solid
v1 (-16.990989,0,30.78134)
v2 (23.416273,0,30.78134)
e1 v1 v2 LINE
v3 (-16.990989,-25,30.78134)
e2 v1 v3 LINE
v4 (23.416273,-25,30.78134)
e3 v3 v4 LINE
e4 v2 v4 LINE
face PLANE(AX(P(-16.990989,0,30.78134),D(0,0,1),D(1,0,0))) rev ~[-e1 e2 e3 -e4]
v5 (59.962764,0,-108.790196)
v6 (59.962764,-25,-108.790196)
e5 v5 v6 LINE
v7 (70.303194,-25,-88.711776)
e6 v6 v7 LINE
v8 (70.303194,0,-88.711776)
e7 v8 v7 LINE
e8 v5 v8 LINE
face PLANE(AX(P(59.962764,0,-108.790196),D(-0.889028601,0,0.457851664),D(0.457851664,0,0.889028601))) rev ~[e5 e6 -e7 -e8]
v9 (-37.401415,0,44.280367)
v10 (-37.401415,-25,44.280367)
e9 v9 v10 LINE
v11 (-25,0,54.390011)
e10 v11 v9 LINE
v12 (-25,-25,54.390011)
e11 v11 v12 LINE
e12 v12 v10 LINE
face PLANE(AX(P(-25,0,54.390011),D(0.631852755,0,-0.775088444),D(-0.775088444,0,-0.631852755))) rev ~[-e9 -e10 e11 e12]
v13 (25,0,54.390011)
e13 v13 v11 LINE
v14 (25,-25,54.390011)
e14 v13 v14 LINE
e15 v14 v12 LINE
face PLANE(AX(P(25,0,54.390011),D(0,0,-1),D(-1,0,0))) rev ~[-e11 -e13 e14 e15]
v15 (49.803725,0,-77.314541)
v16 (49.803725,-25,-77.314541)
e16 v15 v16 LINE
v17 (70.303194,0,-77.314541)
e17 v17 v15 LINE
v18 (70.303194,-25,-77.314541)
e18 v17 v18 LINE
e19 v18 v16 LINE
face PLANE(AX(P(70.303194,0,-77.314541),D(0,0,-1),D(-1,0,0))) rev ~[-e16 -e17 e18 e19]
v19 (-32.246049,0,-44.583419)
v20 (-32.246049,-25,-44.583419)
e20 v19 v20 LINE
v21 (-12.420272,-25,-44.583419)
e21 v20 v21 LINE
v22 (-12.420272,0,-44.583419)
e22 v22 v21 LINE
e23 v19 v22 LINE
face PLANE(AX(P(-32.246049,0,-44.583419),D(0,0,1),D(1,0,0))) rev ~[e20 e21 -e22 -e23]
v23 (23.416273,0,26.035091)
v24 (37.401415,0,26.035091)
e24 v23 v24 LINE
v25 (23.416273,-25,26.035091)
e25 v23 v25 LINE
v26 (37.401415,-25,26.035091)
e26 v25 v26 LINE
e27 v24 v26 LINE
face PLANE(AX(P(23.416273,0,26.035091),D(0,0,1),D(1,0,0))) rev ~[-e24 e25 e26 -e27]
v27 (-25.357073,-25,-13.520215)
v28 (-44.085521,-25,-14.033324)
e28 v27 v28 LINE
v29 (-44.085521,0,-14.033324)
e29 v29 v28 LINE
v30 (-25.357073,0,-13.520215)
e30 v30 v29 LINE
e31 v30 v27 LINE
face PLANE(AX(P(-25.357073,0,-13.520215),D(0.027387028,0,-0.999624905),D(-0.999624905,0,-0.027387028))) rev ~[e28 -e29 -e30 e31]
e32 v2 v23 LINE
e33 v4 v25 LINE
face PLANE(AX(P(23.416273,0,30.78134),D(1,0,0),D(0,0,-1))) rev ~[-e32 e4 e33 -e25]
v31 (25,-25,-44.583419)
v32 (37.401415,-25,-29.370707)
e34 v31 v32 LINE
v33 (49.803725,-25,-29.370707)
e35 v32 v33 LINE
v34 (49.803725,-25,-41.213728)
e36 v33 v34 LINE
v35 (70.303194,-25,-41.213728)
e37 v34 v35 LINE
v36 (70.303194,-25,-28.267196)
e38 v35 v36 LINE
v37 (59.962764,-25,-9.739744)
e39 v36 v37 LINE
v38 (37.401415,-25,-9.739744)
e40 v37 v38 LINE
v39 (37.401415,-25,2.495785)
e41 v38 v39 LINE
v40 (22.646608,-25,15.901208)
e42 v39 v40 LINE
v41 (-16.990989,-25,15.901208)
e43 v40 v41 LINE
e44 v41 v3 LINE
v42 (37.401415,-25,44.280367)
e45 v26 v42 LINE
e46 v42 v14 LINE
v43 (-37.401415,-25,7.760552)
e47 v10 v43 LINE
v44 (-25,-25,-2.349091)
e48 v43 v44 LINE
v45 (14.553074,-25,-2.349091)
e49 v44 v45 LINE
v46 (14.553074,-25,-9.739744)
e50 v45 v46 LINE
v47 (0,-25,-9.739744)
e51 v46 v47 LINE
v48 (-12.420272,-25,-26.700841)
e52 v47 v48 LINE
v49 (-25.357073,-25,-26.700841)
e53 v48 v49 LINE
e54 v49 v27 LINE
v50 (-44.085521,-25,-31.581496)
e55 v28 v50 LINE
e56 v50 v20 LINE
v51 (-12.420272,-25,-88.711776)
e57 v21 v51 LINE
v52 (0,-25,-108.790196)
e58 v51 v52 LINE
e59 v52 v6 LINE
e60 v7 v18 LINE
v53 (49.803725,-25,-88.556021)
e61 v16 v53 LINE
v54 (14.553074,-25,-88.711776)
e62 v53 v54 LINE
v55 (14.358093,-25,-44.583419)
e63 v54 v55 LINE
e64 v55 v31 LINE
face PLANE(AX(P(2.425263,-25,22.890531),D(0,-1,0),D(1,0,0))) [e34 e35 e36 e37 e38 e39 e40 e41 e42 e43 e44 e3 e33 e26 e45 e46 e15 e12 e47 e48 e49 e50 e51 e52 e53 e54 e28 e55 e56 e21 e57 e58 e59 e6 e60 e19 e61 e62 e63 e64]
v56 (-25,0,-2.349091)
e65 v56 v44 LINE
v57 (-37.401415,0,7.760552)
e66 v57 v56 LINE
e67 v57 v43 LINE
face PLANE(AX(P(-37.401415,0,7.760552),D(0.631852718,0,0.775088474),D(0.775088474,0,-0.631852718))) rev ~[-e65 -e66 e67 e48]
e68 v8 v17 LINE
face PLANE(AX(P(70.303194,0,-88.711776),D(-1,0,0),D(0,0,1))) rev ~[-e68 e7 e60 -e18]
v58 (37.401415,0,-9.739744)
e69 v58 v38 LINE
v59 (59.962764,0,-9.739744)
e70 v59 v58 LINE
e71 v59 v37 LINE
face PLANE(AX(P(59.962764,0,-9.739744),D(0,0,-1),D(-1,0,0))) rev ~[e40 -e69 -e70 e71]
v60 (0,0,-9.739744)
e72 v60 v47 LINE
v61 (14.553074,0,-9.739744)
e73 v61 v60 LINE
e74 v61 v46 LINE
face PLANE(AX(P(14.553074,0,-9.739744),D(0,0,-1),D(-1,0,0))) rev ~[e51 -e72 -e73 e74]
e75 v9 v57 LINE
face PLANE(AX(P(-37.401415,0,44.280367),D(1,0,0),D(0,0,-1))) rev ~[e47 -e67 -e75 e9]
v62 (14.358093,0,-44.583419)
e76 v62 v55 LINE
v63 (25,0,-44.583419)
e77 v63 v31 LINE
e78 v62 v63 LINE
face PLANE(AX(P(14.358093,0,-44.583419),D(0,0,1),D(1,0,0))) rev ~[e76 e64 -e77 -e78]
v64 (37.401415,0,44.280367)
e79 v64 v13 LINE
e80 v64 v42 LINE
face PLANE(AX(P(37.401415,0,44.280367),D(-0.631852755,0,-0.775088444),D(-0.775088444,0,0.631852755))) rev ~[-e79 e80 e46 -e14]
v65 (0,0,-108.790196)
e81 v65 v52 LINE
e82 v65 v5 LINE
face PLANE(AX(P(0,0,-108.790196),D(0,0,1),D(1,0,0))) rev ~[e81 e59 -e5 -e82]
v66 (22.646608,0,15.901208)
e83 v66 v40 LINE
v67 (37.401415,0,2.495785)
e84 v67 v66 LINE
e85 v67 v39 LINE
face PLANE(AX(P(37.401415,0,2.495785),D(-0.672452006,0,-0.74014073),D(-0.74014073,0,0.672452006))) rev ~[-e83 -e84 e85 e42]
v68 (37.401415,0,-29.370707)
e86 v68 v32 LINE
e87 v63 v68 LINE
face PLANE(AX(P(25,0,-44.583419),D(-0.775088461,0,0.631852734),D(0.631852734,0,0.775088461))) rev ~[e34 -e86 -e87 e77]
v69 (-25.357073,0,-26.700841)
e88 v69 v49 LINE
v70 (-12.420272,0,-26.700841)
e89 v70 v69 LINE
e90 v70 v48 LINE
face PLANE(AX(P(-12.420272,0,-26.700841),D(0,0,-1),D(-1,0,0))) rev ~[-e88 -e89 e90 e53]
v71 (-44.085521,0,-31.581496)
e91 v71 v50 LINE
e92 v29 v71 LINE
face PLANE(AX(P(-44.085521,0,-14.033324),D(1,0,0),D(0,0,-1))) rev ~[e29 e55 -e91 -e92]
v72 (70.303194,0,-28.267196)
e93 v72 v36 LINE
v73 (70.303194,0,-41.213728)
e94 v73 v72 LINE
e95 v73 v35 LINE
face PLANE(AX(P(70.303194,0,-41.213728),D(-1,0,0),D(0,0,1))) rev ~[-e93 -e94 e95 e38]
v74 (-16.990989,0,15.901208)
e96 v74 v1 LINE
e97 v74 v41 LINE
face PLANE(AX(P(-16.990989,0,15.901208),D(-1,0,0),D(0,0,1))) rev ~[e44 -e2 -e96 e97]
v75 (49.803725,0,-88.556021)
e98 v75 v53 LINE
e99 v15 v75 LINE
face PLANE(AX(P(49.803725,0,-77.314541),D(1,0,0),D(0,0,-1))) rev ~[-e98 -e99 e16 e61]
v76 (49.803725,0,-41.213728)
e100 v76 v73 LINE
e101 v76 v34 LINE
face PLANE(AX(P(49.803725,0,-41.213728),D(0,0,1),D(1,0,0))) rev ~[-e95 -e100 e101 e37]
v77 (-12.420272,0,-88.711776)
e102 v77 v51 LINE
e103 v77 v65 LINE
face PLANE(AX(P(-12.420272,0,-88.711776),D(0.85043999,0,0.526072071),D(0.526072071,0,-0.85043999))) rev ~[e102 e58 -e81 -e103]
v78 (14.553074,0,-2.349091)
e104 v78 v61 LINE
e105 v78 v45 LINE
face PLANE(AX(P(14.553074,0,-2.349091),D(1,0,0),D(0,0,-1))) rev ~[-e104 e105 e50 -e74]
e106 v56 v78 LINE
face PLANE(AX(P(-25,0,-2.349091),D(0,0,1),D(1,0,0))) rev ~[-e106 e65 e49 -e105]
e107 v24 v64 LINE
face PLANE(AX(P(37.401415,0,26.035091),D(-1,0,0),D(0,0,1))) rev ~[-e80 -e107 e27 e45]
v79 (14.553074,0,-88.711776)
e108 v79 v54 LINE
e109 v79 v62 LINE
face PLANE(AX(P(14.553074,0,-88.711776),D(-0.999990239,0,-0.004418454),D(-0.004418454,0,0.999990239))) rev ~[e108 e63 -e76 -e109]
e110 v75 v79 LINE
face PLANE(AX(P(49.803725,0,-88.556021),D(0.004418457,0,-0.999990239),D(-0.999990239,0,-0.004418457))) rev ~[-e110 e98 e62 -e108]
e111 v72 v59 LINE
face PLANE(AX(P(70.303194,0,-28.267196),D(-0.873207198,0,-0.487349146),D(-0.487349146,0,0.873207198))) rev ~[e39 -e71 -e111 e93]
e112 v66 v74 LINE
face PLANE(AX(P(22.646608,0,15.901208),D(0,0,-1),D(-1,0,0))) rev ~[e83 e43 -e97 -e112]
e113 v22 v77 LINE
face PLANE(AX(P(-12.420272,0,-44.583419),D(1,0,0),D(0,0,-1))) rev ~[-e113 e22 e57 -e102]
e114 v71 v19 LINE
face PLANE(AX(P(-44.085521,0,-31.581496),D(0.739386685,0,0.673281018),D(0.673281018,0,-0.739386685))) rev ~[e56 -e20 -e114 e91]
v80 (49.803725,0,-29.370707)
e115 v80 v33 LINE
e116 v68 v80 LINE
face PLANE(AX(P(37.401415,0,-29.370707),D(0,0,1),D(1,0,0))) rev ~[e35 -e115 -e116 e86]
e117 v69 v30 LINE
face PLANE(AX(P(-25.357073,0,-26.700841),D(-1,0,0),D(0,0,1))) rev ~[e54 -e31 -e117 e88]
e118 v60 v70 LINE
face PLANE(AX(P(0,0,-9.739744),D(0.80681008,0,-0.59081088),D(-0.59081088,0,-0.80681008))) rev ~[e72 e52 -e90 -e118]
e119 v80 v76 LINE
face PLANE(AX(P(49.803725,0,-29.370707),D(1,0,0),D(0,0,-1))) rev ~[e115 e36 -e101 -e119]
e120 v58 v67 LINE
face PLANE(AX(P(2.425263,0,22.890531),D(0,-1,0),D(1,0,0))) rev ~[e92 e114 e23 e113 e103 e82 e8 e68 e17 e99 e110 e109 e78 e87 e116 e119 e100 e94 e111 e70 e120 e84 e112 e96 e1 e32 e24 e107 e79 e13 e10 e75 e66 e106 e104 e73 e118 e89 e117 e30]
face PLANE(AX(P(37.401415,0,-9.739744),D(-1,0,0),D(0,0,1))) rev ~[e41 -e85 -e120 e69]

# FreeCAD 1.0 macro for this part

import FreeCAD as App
import Part
import Sketcher
from FreeCAD import Vector


def add_polygon(sketch, points):
    """Adds a closed chain of lines whose ends are joined by coincident constraints."""
    first, n = sketch.GeometryCount, len(points)
    for a, b in zip(points, points[1:] + points[:1]):
        sketch.addGeometry(Part.LineSegment(App.Vector(*a, 0), App.Vector(*b, 0)), False)
    for i in range(n):
        sketch.addConstraint(Sketcher.Constraint("Coincident", first + i, 2, first + (i + 1) % n, 1))

doc = App.newDocument("Part")
body = doc.addObject("PartDesign::Body", "Body")

sketch1 = body.newObject("Sketcher::SketchObject", "Sketch")
sketch1.AttachmentSupport = (doc.getObject("XZ_Plane"), [""])
sketch1.MapMode = "FlatFace"
add_polygon(sketch1, [(25, 54.4), (-25, 54.4), (-37.4, 44.3), (-37.4, 7.8), (-25, -2.3), (14.6, -2.3), (14.6, -9.7), (0, -9.7), (-12.4, -26.7), (-25.4, -26.7), (-25.4, -13.5), (-44.1, -14), (-44.1, -31.6), (-32.2, -44.6), (-12.4, -44.6), (-12.4, -88.7), (0, -108.8), (60, -108.8), (70.3, -88.7), (70.3, -77.3), (49.8, -77.3), (49.8, -88.6), (14.6, -88.7), (14.4, -44.6), (25, -44.6), (37.4, -29.4), (49.8, -29.4), (49.8, -41.2), (70.3, -41.2), (70.3, -28.3), (60, -9.7), (37.4, -9.7), (37.4, 2.5), (22.6, 15.9), (-17, 15.9), (-17, 30.8), (23.4, 30.8), (23.4, 26), (37.4, 26), (37.4, 44.3)])
sketch1.addConstraint([
    Sketcher.Constraint("Horizontal", 0),
    Sketcher.Constraint("Vertical", 2),
    Sketcher.Constraint("Horizontal", 4),
    Sketcher.Constraint("Vertical", 5),
    Sketcher.Constraint("Horizontal", 6),
    Sketcher.Constraint("Horizontal", 8),
    Sketcher.Constraint("Vertical", 9),
    Sketcher.Constraint("Vertical", 11),
    Sketcher.Constraint("Horizontal", 13),
    Sketcher.Constraint("Vertical", 14),
    Sketcher.Constraint("Horizontal", 16),
    Sketcher.Constraint("Vertical", 18),
    Sketcher.Constraint("Horizontal", 19),
    Sketcher.Constraint("Vertical", 20),
    Sketcher.Constraint("Horizontal", 23),
    Sketcher.Constraint("Horizontal", 25),
    Sketcher.Constraint("Vertical", 26),
    Sketcher.Constraint("Horizontal", 27),
    Sketcher.Constraint("Vertical", 28),
    Sketcher.Constraint("Horizontal", 30),
    Sketcher.Constraint("Vertical", 31),
    Sketcher.Constraint("Horizontal", 33),
    Sketcher.Constraint("Vertical", 34),
    Sketcher.Constraint("Horizontal", 35),
    Sketcher.Constraint("Vertical", 36),
    Sketcher.Constraint("Horizontal", 37),
    Sketcher.Constraint("Vertical", 38),
    Sketcher.Constraint("Symmetric", 1, 2, 38, 2, -2),
    Sketcher.Constraint("PointOnObject", 6, 2, -2),
    Sketcher.Constraint("PointOnObject", 15, 2, -2),
    Sketcher.Constraint("Perpendicular", 21, 22),
    Sketcher.Constraint("Perpendicular", 3, 24),
    Sketcher.Constraint("Perpendicular", 24, 39),
    Sketcher.Constraint("Horizontal", 14, 2, 17, 2),
    Sketcher.Constraint("Horizontal", 17, 2, 21, 2),
    Sketcher.Constraint("Horizontal", 13, 2, 22, 2),
    Sketcher.Constraint("Horizontal", 6, 2, 29, 2),
    Sketcher.Constraint("Vertical", 0, 2, 3, 2),
    Sketcher.Constraint("Vertical", 7, 2, 13, 2),
    Sketcher.Constraint("Vertical", 5, 2, 21, 2),
    Sketcher.Constraint("Vertical", 20, 2, 25, 2),
    Sketcher.Constraint("Vertical", 18, 2, 27, 2),
    Sketcher.Constraint("Vertical", 16, 2, 29, 2),
    Sketcher.Constraint("Vertical", 24, 2, 30, 2),
    Sketcher.Constraint("Vertical", 31, 2, 37, 2),
    Sketcher.Constraint("Vertical", 23, 2, 39, 2),
    Sketcher.Constraint("Equal", 1, 3),
    Sketcher.Constraint("DistanceX", 0, 2, 0, 1, 50.0),
    Sketcher.Constraint("Distance", 1, 16.0),
    Sketcher.Constraint("DistanceX", 8, 2, 8, 1, 12.936801),
    Sketcher.Constraint("DistanceX", 19, 2, 19, 1, 20.499469),
    Sketcher.Constraint("DistanceX", 25, 1, 25, 2, 12.40231),
    Sketcher.Constraint("DistanceX", 30, 2, 30, 1, 22.561349),
    Sketcher.Constraint("DistanceY", 20, 2, 20, 1, 11.24148),
    Sketcher.Constraint("DistanceY", 26, 2, 26, 1, 11.843021),
    Sketcher.Constraint("DistanceY", 31, 1, 31, 2, 12.235529),
    Sketcher.Constraint("DistanceY", 36, 2, 36, 1, 4.746249),
    Sketcher.Constraint("DistanceY", 4, 2, 32, 2, 18.250299),
    Sketcher.Constraint("DistanceX", 4, 2, 35, 2, 8.863199),
    Sketcher.Constraint("Distance", 12, 17.584741),
    Sketcher.Constraint("Distance", 15, 23.60945),
    Sketcher.Constraint("DistanceX", 4, 1, 4, 2, 39.553074),
    Sketcher.Constraint("DistanceX", 13, 1, 13, 2, 19.825777),
    Sketcher.Constraint("DistanceX", 16, 1, 16, 2, 59.962764),
    Sketcher.Constraint("DistanceX", 23, 1, 23, 2, 10.641907),
    Sketcher.Constraint("DistanceX", 33, 2, 33, 1, 39.637597),
    Sketcher.Constraint("DistanceX", 35, 1, 35, 2, 40.407262),
    Sketcher.Constraint("DistanceY", 2, 2, 2, 1, 36.519815),
    Sketcher.Constraint("DistanceY", 5, 2, 5, 1, 7.390653),
    Sketcher.Constraint("DistanceY", 9, 1, 9, 2, 13.180626),
    Sketcher.Constraint("DistanceY", 11, 2, 11, 1, 17.548172),
    Sketcher.Constraint("DistanceY", 14, 2, 14, 1, 44.128357),
    Sketcher.Constraint("DistanceY", 28, 1, 28, 2, 12.946532),
    Sketcher.Constraint("DistanceY", 34, 1, 34, 2, 14.880132),
    Sketcher.Constraint("DistanceY", -1, 1, 0, 2, 54.390011),
    Sketcher.Constraint("DistanceY", 7, 2, -1, 1, 26.700841),
    Sketcher.Constraint("DistanceX", 10, 2, -1, 1, 44.085521),
    Sketcher.Constraint("DistanceX", 12, 2, -1, 1, 32.246049),
    Sketcher.Constraint("DistanceY", 12, 2, -1, 1, 44.583419),
])
pad1 = body.newObject("PartDesign::Pad", "Pad")
pad1.Profile = sketch1
pad1.Length = 25

doc.recompute()
